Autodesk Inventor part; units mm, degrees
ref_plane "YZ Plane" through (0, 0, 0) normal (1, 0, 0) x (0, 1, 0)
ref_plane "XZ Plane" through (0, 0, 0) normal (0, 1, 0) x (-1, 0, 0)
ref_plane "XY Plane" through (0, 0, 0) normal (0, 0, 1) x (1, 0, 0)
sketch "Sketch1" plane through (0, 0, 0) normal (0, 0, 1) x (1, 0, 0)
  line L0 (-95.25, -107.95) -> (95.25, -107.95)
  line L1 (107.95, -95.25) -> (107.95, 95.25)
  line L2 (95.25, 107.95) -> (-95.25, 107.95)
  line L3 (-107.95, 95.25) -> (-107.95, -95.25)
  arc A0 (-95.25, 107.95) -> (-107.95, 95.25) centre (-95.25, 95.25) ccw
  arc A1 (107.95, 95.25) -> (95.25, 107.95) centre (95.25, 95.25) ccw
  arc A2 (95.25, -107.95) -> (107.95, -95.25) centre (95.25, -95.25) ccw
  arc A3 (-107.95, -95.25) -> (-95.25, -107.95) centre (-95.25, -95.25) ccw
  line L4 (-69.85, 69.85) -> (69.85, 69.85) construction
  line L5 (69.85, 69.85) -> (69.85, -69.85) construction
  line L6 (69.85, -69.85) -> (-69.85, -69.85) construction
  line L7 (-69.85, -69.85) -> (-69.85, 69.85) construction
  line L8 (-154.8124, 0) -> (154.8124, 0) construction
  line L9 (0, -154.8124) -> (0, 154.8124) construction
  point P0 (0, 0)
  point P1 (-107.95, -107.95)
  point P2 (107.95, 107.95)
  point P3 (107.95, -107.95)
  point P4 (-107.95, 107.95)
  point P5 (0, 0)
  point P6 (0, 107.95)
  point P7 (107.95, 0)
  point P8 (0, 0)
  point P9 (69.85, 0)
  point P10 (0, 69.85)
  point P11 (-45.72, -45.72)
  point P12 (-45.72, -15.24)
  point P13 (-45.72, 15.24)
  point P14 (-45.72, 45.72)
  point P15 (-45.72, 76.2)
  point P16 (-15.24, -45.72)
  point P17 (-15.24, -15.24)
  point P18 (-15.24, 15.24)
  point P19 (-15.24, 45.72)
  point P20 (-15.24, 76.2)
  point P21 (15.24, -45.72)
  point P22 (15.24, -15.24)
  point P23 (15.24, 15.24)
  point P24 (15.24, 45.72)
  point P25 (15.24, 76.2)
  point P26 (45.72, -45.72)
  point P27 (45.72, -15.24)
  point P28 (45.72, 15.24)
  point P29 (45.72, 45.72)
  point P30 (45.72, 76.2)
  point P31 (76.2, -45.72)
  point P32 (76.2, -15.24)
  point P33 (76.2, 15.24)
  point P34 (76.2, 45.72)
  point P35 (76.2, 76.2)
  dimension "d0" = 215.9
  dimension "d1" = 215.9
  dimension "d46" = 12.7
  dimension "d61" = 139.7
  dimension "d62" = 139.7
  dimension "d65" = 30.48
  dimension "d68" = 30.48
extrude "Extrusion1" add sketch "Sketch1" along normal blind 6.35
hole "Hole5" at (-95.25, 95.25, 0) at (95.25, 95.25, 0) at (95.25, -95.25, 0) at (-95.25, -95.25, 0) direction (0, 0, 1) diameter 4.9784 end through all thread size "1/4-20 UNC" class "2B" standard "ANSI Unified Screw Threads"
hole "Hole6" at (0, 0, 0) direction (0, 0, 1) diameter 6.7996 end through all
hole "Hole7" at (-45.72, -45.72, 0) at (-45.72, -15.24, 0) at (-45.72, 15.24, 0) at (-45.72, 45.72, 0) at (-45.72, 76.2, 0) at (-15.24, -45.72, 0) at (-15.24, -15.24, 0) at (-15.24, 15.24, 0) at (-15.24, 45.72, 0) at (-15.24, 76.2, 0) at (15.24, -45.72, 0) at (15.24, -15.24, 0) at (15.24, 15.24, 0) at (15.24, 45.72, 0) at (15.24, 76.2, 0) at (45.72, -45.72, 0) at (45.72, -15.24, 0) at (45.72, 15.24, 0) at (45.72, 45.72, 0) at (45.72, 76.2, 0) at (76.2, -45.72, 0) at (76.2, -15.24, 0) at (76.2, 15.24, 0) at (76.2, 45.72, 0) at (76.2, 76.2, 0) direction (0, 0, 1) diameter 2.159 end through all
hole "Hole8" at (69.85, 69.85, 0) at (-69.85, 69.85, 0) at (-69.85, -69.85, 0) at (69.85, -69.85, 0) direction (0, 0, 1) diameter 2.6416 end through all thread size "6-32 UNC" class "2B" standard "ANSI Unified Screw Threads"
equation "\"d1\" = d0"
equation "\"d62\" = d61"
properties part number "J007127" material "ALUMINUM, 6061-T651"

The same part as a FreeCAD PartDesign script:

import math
import FreeCAD as App
import Part
import Sketcher
Q = App.Units.Quantity

doc = App.newDocument("Part")
params = doc.addObject("Spreadsheet::Sheet", "Params")
for row, (alias, value) in enumerate([
    ("sketch1_radius", "0.5 in"),
    ("sketch1_width", "7.5 in"),
    ("pad1_length", "0.25 in"),
    ("sketch2_diameter", "0.196 in"),
    ("hole_diameter", "0.196 in"),
    ("hole2_diameter", "0.2677008 in"),
    ("sketch4_diameter", "0.085 in"),
    ("hole3_diameter", "0.085 in"),
    ("sketch5_diameter", "0.104 in"),
    ("hole4_diameter", "0.104 in"),
], start=1):
    params.set(f"A{row}", alias)
    params.set(f"B{row}", "=" + value)
    params.setAlias(f"B{row}", alias)

body = doc.addObject("PartDesign::Body", "Body")

# Sketch on XY plane
sketch1 = body.newObject("Sketcher::SketchObject", "Sketch")
sketch1.AttachmentSupport = (doc.getObject("XY_Plane"), [""])
sketch1.MapMode = "FlatFace"
sketch1.addGeometry([
    Part.ArcOfCircle(Part.Circle(App.Vector(-95, -95, 0), App.Vector(0, 0, 1), 13), math.radians(180), math.radians(270)),  # 0
    Part.LineSegment(App.Vector(-95, -108, 0), App.Vector(95, -108, 0)),  # 1
    Part.ArcOfCircle(Part.Circle(App.Vector(95, -95, 0), App.Vector(0, 0, 1), 13), math.radians(-90), math.radians(0)),  # 2
    Part.LineSegment(App.Vector(108, -95, 0), App.Vector(108, 95, 0)),  # 3
    Part.ArcOfCircle(Part.Circle(App.Vector(95, 95, 0), App.Vector(0, 0, 1), 13), math.radians(0), math.radians(90)),  # 4
    Part.LineSegment(App.Vector(95, 108, 0), App.Vector(-95, 108, 0)),  # 5
    Part.ArcOfCircle(Part.Circle(App.Vector(-95, 95, 0), App.Vector(0, 0, 1), 13), math.radians(90), math.radians(180)),  # 6
    Part.LineSegment(App.Vector(-108, 95, 0), App.Vector(-108, -95, 0)),  # 7
], False)
sketch1.addConstraint([
    Sketcher.Constraint("Tangent", 0, 2, 1, 1),
    Sketcher.Constraint("Tangent", 1, 2, 2, 1),
    Sketcher.Constraint("Tangent", 2, 2, 3, 1),
    Sketcher.Constraint("Tangent", 3, 2, 4, 1),
    Sketcher.Constraint("Tangent", 4, 2, 5, 1),
    Sketcher.Constraint("Tangent", 5, 2, 6, 1),
    Sketcher.Constraint("Tangent", 6, 2, 7, 1),
    Sketcher.Constraint("Tangent", 7, 2, 0, 1),
    Sketcher.Constraint("Horizontal", 1),
    Sketcher.Constraint("Vertical", 3),
    Sketcher.Constraint("Horizontal", 5),
    Sketcher.Constraint("Vertical", 7),
    Sketcher.Constraint("Equal", 0, 2),
    Sketcher.Constraint("Equal", 2, 4),
    Sketcher.Constraint("Equal", 4, 6),
    Sketcher.Constraint("Symmetric", 0, 3, 4, 3, -1, 1),
    Sketcher.Constraint("Equal", 5, 3),
    Sketcher.Constraint("Radius", 0, Q("0.5 in")),
    Sketcher.Constraint("DistanceX", 1, 1, 1, 2, Q("7.5 in")),
])
sketch1.setExpression("Constraints[17]", "Params.sketch1_radius")
sketch1.setExpression("Constraints[18]", "Params.sketch1_width")
pad1 = body.newObject("PartDesign::Pad", "Pad")
pad1.Profile = sketch1
pad1.setExpression("Length", "Params.pad1_length")

# Sketch on XY plane
sketch2 = body.newObject("Sketcher::SketchObject", "Sketch001")
sketch2.AttachmentSupport = (doc.getObject("XY_Plane"), [""])
sketch2.MapMode = "FlatFace"
sketch2.addGeometry([
    Part.Circle(App.Vector(-95.2, 95.2, 0), App.Vector(0, 0, 1), 2.5),
    Part.Circle(App.Vector(95.2, 95.2, 0), App.Vector(0, 0, 1), 2.5),
    Part.Circle(App.Vector(95.2, -95.2, 0), App.Vector(0, 0, 1), 2.5),
    Part.Circle(App.Vector(-95.2, -95.2, 0), App.Vector(0, 0, 1), 2.5),
], False)
sketch2.addConstraint([
    Sketcher.Constraint("Equal", 0, 1),
    Sketcher.Constraint("Equal", 1, 2),
    Sketcher.Constraint("Equal", 2, 3),
    Sketcher.Constraint("Symmetric", 0, 3, 2, 3, -1, 1),
    Sketcher.Constraint("Symmetric", 1, 3, 3, 3, -1, 1),
    Sketcher.Constraint("Symmetric", 0, 3, 1, 3, -2),
    Sketcher.Constraint("Diameter", 0, Q("0.196 in")),
    Sketcher.Constraint("DistanceX", 0, 3, 1, 3, Q("7.5 in")),
    Sketcher.Constraint("DistanceY", 2, 3, 1, 3, Q("7.5 in")),
])
sketch2.setExpression("Constraints[6]", "Params.sketch2_diameter")
doc.recompute()
hole = body.newObject("PartDesign::Hole", "Hole")
hole.Profile = sketch2
hole.ThreadType = "None"
hole.setExpression("Diameter", "Params.hole_diameter")
hole.DepthType = "ThroughAll"
hole.Reversed = True

# Sketch on XY plane
sketch3 = body.newObject("Sketcher::SketchObject", "Sketch002")
sketch3.AttachmentSupport = (doc.getObject("XY_Plane"), [""])
sketch3.MapMode = "FlatFace"
sketch3.addGeometry(Part.Circle(App.Vector(0, 0, 0), App.Vector(0, 0, 1), 3.4), False)
sketch3.addConstraint([
    Sketcher.Constraint("Coincident", 0, 3, -1, 1),
    Sketcher.Constraint("Diameter", 0, Q("0.2677 in")),
])
doc.recompute()
hole2 = body.newObject("PartDesign::Hole", "Hole001")
hole2.Profile = sketch3
hole2.ThreadType = "None"
hole2.setExpression("Diameter", "Params.hole2_diameter")
hole2.DepthType = "ThroughAll"
hole2.Reversed = True

# Sketch on XY plane
sketch4 = body.newObject("Sketcher::SketchObject", "Sketch003")
sketch4.AttachmentSupport = (doc.getObject("XY_Plane"), [""])
sketch4.MapMode = "FlatFace"
sketch4.addGeometry([
    Part.Circle(App.Vector(-45.7, -45.7, 0), App.Vector(0, 0, 1), 1.1),  # 0
    Part.Circle(App.Vector(-45.7, -15.2, 0), App.Vector(0, 0, 1), 1.1),  # 1
    Part.Circle(App.Vector(-45.7, 15.2, 0), App.Vector(0, 0, 1), 1.1),  # 2
    Part.Circle(App.Vector(-45.7, 45.7, 0), App.Vector(0, 0, 1), 1.1),  # 3
    Part.Circle(App.Vector(-45.7, 76.2, 0), App.Vector(0, 0, 1), 1.1),  # 4
    Part.Circle(App.Vector(-15.2, -45.7, 0), App.Vector(0, 0, 1), 1.1),  # 5
    Part.Circle(App.Vector(-15.2, -15.2, 0), App.Vector(0, 0, 1), 1.1),  # 6
    Part.Circle(App.Vector(-15.2, 15.2, 0), App.Vector(0, 0, 1), 1.1),  # 7
    Part.Circle(App.Vector(-15.2, 45.7, 0), App.Vector(0, 0, 1), 1.1),  # 8
    Part.Circle(App.Vector(-15.2, 76.2, 0), App.Vector(0, 0, 1), 1.1),  # 9
    Part.Circle(App.Vector(15.2, -45.7, 0), App.Vector(0, 0, 1), 1.1),  # 10
    Part.Circle(App.Vector(15.2, -15.2, 0), App.Vector(0, 0, 1), 1.1),  # 11
    Part.Circle(App.Vector(15.2, 15.2, 0), App.Vector(0, 0, 1), 1.1),  # 12
    Part.Circle(App.Vector(15.2, 45.7, 0), App.Vector(0, 0, 1), 1.1),  # 13
    Part.Circle(App.Vector(15.2, 76.2, 0), App.Vector(0, 0, 1), 1.1),  # 14
    Part.Circle(App.Vector(45.7, -45.7, 0), App.Vector(0, 0, 1), 1.1),  # 15
    Part.Circle(App.Vector(45.7, -15.2, 0), App.Vector(0, 0, 1), 1.1),  # 16
    Part.Circle(App.Vector(45.7, 15.2, 0), App.Vector(0, 0, 1), 1.1),  # 17
    Part.Circle(App.Vector(45.7, 45.7, 0), App.Vector(0, 0, 1), 1.1),  # 18
    Part.Circle(App.Vector(45.7, 76.2, 0), App.Vector(0, 0, 1), 1.1),  # 19
    Part.Circle(App.Vector(76.2, -45.7, 0), App.Vector(0, 0, 1), 1.1),  # 20
    Part.Circle(App.Vector(76.2, -15.2, 0), App.Vector(0, 0, 1), 1.1),  # 21
    Part.Circle(App.Vector(76.2, 15.2, 0), App.Vector(0, 0, 1), 1.1),  # 22
    Part.Circle(App.Vector(76.2, 45.7, 0), App.Vector(0, 0, 1), 1.1),  # 23
    Part.Circle(App.Vector(76.2, 76.2, 0), App.Vector(0, 0, 1), 1.1),  # 24
], False)
sketch4.addConstraint([
    Sketcher.Constraint("Equal", 0, 1),
    Sketcher.Constraint("Equal", 1, 2),
    Sketcher.Constraint("Equal", 2, 3),
    Sketcher.Constraint("Equal", 3, 4),
    Sketcher.Constraint("Equal", 4, 5),
    Sketcher.Constraint("Equal", 5, 6),
    Sketcher.Constraint("Equal", 6, 7),
    Sketcher.Constraint("Equal", 7, 8),
    Sketcher.Constraint("Equal", 8, 9),
    Sketcher.Constraint("Equal", 9, 10),
    Sketcher.Constraint("Equal", 10, 11),
    Sketcher.Constraint("Equal", 11, 12),
    Sketcher.Constraint("Equal", 12, 13),
    Sketcher.Constraint("Equal", 13, 14),
    Sketcher.Constraint("Equal", 14, 15),
    Sketcher.Constraint("Equal", 15, 16),
    Sketcher.Constraint("Equal", 16, 17),
    Sketcher.Constraint("Equal", 17, 18),
    Sketcher.Constraint("Equal", 18, 19),
    Sketcher.Constraint("Equal", 19, 20),
    Sketcher.Constraint("Equal", 20, 21),
    Sketcher.Constraint("Equal", 21, 22),
    Sketcher.Constraint("Equal", 22, 23),
    Sketcher.Constraint("Equal", 23, 24),
    Sketcher.Constraint("Symmetric", 8, 3, 10, 3, -1, 1),
    Sketcher.Constraint("Symmetric", 7, 3, 11, 3, -1, 1),
    Sketcher.Constraint("Symmetric", 6, 3, 12, 3, -1, 1),
    Sketcher.Constraint("Symmetric", 5, 3, 13, 3, -1, 1),
    Sketcher.Constraint("Symmetric", 3, 3, 15, 3, -1, 1),
    Sketcher.Constraint("Symmetric", 2, 3, 16, 3, -1, 1),
    Sketcher.Constraint("Symmetric", 1, 3, 17, 3, -1, 1),
    Sketcher.Constraint("Symmetric", 0, 3, 18, 3, -1, 1),
    Sketcher.Constraint("Symmetric", 5, 3, 10, 3, -2),
    Sketcher.Constraint("Symmetric", 6, 3, 11, 3, -2),
    Sketcher.Constraint("Symmetric", 9, 3, 14, 3, -2),
    Sketcher.Constraint("Symmetric", 0, 3, 15, 3, -2),
    Sketcher.Constraint("Symmetric", 1, 3, 16, 3, -2),
    Sketcher.Constraint("Symmetric", 4, 3, 19, 3, -2),
    Sketcher.Constraint("Symmetric", 21, 3, 22, 3, -1),
    Sketcher.Constraint("Symmetric", 20, 3, 23, 3, -1),
    Sketcher.Constraint("Horizontal", 0, 3, 5, 3),
    Sketcher.Constraint("Horizontal", 1, 3, 6, 3),
    Sketcher.Constraint("Horizontal", 4, 3, 9, 3),
    Sketcher.Constraint("Horizontal", 15, 3, 20, 3),
    Sketcher.Constraint("Horizontal", 16, 3, 21, 3),
    Sketcher.Constraint("Horizontal", 19, 3, 24, 3),
    Sketcher.Constraint("Vertical", 0, 3, 1, 3),
    Sketcher.Constraint("Vertical", 3, 3, 4, 3),
    Sketcher.Constraint("Vertical", 5, 3, 6, 3),
    Sketcher.Constraint("Vertical", 8, 3, 9, 3),
    Sketcher.Constraint("Vertical", 20, 3, 21, 3),
    Sketcher.Constraint("Vertical", 23, 3, 24, 3),
    Sketcher.Constraint("Diameter", 0, Q("0.085 in")),
    Sketcher.Constraint("DistanceY", -1, 1, 4, 3, Q("3 in")),
    Sketcher.Constraint("DistanceX", -1, 1, 20, 3, Q("3 in")),
    Sketcher.Constraint("DistanceX", 0, 3, -1, 1, Q("1.8 in")),
    Sketcher.Constraint("DistanceY", 0, 3, -1, 1, Q("1.8 in")),
    Sketcher.Constraint("DistanceY", 1, 3, -1, 1, Q("0.6 in")),
    Sketcher.Constraint("DistanceX", 5, 3, -1, 1, Q("0.6 in")),
])
sketch4.setExpression("Constraints[52]", "Params.sketch4_diameter")
doc.recompute()
hole3 = body.newObject("PartDesign::Hole", "Hole002")
hole3.Profile = sketch4
hole3.ThreadType = "None"
hole3.setExpression("Diameter", "Params.hole3_diameter")
hole3.DepthType = "ThroughAll"
hole3.Reversed = True

# Sketch on XY plane
sketch5 = body.newObject("Sketcher::SketchObject", "Sketch004")
sketch5.AttachmentSupport = (doc.getObject("XY_Plane"), [""])
sketch5.MapMode = "FlatFace"
sketch5.addGeometry([
    Part.Circle(App.Vector(69.8, 69.8, 0), App.Vector(0, 0, 1), 1.3),
    Part.Circle(App.Vector(-69.8, 69.8, 0), App.Vector(0, 0, 1), 1.3),
    Part.Circle(App.Vector(-69.8, -69.8, 0), App.Vector(0, 0, 1), 1.3),
    Part.Circle(App.Vector(69.8, -69.8, 0), App.Vector(0, 0, 1), 1.3),
], False)
sketch5.addConstraint([
    Sketcher.Constraint("Equal", 0, 1),
    Sketcher.Constraint("Equal", 1, 2),
    Sketcher.Constraint("Equal", 2, 3),
    Sketcher.Constraint("Symmetric", 0, 3, 2, 3, -1, 1),
    Sketcher.Constraint("Symmetric", 1, 3, 3, 3, -1, 1),
    Sketcher.Constraint("Symmetric", 0, 3, 1, 3, -2),
    Sketcher.Constraint("Diameter", 0, Q("0.104 in")),
    Sketcher.Constraint("DistanceX", 1, 3, 0, 3, Q("5.5 in")),
    Sketcher.Constraint("DistanceY", 2, 3, 1, 3, Q("5.5 in")),
])
sketch5.setExpression("Constraints[6]", "Params.sketch5_diameter")
doc.recompute()
hole4 = body.newObject("PartDesign::Hole", "Hole003")
hole4.Profile = sketch5
hole4.ThreadType = "None"
hole4.setExpression("Diameter", "Params.hole4_diameter")
hole4.DepthType = "ThroughAll"
hole4.Reversed = True

doc.recompute()
